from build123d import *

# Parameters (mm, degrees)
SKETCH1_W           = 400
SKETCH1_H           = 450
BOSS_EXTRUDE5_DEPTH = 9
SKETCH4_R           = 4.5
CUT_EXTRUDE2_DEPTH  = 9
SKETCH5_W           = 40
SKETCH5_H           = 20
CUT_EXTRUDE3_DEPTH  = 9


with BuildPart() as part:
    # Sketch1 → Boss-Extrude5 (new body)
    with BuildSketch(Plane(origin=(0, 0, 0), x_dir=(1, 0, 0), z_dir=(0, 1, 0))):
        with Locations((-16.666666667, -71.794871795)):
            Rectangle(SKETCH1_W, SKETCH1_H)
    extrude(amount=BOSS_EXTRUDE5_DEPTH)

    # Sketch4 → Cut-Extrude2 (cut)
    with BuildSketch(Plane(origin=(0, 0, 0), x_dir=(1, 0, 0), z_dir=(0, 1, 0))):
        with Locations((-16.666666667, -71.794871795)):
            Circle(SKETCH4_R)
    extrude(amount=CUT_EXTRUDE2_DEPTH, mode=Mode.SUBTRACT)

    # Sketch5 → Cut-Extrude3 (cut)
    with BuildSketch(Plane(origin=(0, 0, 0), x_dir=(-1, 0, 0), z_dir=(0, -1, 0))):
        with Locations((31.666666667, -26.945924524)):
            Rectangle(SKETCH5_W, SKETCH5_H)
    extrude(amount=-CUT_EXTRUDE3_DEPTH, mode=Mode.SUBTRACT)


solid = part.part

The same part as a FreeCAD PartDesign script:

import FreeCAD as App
import Part
import Sketcher
from FreeCAD import Vector

doc = App.newDocument("Part")
body = doc.addObject("PartDesign::Body", "Body")

# Sketch on XZ plane
sketch1 = doc.addObject("Sketcher::SketchObject", "Sketch")
body.addObject(sketch1)
sketch1.AttachmentSupport = (doc.XZ_Plane, [""])
sketch1.MapMode = "FlatFace"
sketch1.addGeometry([
    Part.LineSegment(Vector(-217, -153, 0), Vector(-217, 297, 0)),
    Part.LineSegment(Vector(-217, 297, 0), Vector(183, 297, 0)),
    Part.LineSegment(Vector(183, 297, 0), Vector(183, -153, 0)),
    Part.LineSegment(Vector(183, -153, 0), Vector(-217, -153, 0)),
], False)
sketch1.addConstraint([
    Sketcher.Constraint("Coincident", 0, 2, 1, 1),
    Sketcher.Constraint("Coincident", 1, 2, 2, 1),
    Sketcher.Constraint("Coincident", 2, 2, 3, 1),
    Sketcher.Constraint("Coincident", 3, 2, 0, 1),
    Sketcher.Constraint("Vertical", 0),
    Sketcher.Constraint("Horizontal", 1),
    Sketcher.Constraint("Vertical", 2),
    Sketcher.Constraint("Horizontal", 3),
    Sketcher.Constraint("DistanceX", 1, 1, 1, 2, 400.0),
    Sketcher.Constraint("DistanceY", 0, 1, 0, 2, 450.0),
    Sketcher.Constraint("DistanceY", -1, 1, 0, 2, 296.794872),
    Sketcher.Constraint("DistanceX", 0, 2, -1, 1, 216.666667),
])
pad1 = doc.addObject("PartDesign::Pad", "Pad")
body.addObject(pad1)
pad1.Profile = sketch1
pad1.Length = 9
pad1.Reversed = True

# Sketch on XZ plane
sketch2 = doc.addObject("Sketcher::SketchObject", "Sketch001")
body.addObject(sketch2)
sketch2.AttachmentSupport = (doc.XZ_Plane, [""])
sketch2.MapMode = "FlatFace"
sketch2.addGeometry(Part.Circle(Vector(-16.7, 71.8, 0), Vector(0, 0, 1), 4.5), False)
sketch2.addConstraint([
    Sketcher.Constraint("Diameter", 0, 9.0),
    Sketcher.Constraint("DistanceY", -1, 1, 0, 3, 71.794872),
    Sketcher.Constraint("DistanceX", 0, 3, -1, 1, 16.666667),
])
pocket1 = doc.addObject("PartDesign::Pocket", "Pocket")
body.addObject(pocket1)
pocket1.Profile = sketch2
pocket1.Length = 9

# Sketch on XZ plane
sketch3 = doc.addObject("Sketcher::SketchObject", "Sketch002")
body.addObject(sketch3)
sketch3.AttachmentSupport = (doc.XZ_Plane, [""])
sketch3.MapMode = "FlatFace"
sketch3.addGeometry([
    Part.LineSegment(Vector(-12, 17, 0), Vector(-12, 37, 0)),
    Part.LineSegment(Vector(-12, 37, 0), Vector(-52, 37, 0)),
    Part.LineSegment(Vector(-52, 37, 0), Vector(-52, 17, 0)),
    Part.LineSegment(Vector(-52, 17, 0), Vector(-12, 17, 0)),
], False)
sketch3.addConstraint([
    Sketcher.Constraint("Coincident", 0, 2, 1, 1),
    Sketcher.Constraint("Coincident", 1, 2, 2, 1),
    Sketcher.Constraint("Coincident", 2, 2, 3, 1),
    Sketcher.Constraint("Coincident", 3, 2, 0, 1),
    Sketcher.Constraint("Vertical", 0),
    Sketcher.Constraint("Horizontal", 1),
    Sketcher.Constraint("Vertical", 2),
    Sketcher.Constraint("Horizontal", 3),
    Sketcher.Constraint("DistanceX", 1, 2, 1, 1, 40.0),
    Sketcher.Constraint("DistanceY", 0, 1, 0, 2, 20.0),
    Sketcher.Constraint("DistanceX", 0, 2, -1, 1, 11.666667),
    Sketcher.Constraint("DistanceY", -1, 1, 0, 2, 36.945925),
])
pocket2 = doc.addObject("PartDesign::Pocket", "Pocket001")
body.addObject(pocket2)
pocket2.Profile = sketch3
pocket2.Length = 9

doc.recompute()
